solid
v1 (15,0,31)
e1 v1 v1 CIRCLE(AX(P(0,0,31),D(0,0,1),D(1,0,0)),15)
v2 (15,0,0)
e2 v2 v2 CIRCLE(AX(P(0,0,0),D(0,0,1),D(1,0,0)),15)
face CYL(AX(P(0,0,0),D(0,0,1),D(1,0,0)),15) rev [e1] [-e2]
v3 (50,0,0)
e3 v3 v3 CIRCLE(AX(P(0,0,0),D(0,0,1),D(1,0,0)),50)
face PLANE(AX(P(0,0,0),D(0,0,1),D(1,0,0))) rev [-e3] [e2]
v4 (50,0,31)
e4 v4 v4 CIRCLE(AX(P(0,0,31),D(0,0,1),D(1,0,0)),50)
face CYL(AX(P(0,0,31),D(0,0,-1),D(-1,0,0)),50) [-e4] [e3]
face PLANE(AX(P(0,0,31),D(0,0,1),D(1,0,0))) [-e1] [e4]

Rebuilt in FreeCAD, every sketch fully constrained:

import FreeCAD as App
import Part
import Sketcher

V = App.Vector

doc = App.newDocument("Part")
params = doc.addObject("Spreadsheet::Sheet", "Params")
for row, (alias, value) in enumerate([
    ("sketch1_diameter", "100 mm"),
    ("pad1_length", "31 mm"),
    ("sketch2_diameter", "30 mm"),
], start=1):
    params.set(f"A{row}", alias)
    params.set(f"B{row}", "=" + value)
    params.setAlias(f"B{row}", alias)

body = doc.addObject("PartDesign::Body", "Body")

# Sketch on XY plane
sketch1 = body.newObject("Sketcher::SketchObject", "Sketch")
sketch1.AttachmentSupport = (doc.getObject("XY_Plane"), [""])
sketch1.MapMode = "FlatFace"
sketch1.addGeometry(Part.Circle(V(0, 0, 0), V(0, 0, 1), 50), False)
sketch1.addConstraint([
    Sketcher.Constraint("Coincident", 0, 3, -1, 1),
    Sketcher.Constraint("Diameter", 0, 100.0),
])
sketch1.setExpression("Constraints[1]", "Params.sketch1_diameter")
pad1 = body.newObject("PartDesign::Pad", "Pad")
pad1.Profile = sketch1
pad1.setExpression("Length", "Params.pad1_length")

# Sketch on XY plane
sketch2 = body.newObject("Sketcher::SketchObject", "Sketch001")
sketch2.AttachmentSupport = (doc.getObject("XY_Plane"), [""])
sketch2.MapMode = "FlatFace"
sketch2.AttachmentOffset = App.Placement(V(0, 0, 31), App.Rotation())
sketch2.addGeometry(Part.Circle(V(0, 0, 0), V(0, 0, 1), 15), False)
sketch2.addConstraint([
    Sketcher.Constraint("Coincident", 0, 3, -1, 1),
    Sketcher.Constraint("Diameter", 0, 30.0),
])
sketch2.setExpression("Constraints[1]", "Params.sketch2_diameter")
pocket1 = body.newObject("PartDesign::Pocket", "Pocket")
pocket1.Profile = sketch2
pocket1.Type = "ThroughAll"

doc.recompute()
